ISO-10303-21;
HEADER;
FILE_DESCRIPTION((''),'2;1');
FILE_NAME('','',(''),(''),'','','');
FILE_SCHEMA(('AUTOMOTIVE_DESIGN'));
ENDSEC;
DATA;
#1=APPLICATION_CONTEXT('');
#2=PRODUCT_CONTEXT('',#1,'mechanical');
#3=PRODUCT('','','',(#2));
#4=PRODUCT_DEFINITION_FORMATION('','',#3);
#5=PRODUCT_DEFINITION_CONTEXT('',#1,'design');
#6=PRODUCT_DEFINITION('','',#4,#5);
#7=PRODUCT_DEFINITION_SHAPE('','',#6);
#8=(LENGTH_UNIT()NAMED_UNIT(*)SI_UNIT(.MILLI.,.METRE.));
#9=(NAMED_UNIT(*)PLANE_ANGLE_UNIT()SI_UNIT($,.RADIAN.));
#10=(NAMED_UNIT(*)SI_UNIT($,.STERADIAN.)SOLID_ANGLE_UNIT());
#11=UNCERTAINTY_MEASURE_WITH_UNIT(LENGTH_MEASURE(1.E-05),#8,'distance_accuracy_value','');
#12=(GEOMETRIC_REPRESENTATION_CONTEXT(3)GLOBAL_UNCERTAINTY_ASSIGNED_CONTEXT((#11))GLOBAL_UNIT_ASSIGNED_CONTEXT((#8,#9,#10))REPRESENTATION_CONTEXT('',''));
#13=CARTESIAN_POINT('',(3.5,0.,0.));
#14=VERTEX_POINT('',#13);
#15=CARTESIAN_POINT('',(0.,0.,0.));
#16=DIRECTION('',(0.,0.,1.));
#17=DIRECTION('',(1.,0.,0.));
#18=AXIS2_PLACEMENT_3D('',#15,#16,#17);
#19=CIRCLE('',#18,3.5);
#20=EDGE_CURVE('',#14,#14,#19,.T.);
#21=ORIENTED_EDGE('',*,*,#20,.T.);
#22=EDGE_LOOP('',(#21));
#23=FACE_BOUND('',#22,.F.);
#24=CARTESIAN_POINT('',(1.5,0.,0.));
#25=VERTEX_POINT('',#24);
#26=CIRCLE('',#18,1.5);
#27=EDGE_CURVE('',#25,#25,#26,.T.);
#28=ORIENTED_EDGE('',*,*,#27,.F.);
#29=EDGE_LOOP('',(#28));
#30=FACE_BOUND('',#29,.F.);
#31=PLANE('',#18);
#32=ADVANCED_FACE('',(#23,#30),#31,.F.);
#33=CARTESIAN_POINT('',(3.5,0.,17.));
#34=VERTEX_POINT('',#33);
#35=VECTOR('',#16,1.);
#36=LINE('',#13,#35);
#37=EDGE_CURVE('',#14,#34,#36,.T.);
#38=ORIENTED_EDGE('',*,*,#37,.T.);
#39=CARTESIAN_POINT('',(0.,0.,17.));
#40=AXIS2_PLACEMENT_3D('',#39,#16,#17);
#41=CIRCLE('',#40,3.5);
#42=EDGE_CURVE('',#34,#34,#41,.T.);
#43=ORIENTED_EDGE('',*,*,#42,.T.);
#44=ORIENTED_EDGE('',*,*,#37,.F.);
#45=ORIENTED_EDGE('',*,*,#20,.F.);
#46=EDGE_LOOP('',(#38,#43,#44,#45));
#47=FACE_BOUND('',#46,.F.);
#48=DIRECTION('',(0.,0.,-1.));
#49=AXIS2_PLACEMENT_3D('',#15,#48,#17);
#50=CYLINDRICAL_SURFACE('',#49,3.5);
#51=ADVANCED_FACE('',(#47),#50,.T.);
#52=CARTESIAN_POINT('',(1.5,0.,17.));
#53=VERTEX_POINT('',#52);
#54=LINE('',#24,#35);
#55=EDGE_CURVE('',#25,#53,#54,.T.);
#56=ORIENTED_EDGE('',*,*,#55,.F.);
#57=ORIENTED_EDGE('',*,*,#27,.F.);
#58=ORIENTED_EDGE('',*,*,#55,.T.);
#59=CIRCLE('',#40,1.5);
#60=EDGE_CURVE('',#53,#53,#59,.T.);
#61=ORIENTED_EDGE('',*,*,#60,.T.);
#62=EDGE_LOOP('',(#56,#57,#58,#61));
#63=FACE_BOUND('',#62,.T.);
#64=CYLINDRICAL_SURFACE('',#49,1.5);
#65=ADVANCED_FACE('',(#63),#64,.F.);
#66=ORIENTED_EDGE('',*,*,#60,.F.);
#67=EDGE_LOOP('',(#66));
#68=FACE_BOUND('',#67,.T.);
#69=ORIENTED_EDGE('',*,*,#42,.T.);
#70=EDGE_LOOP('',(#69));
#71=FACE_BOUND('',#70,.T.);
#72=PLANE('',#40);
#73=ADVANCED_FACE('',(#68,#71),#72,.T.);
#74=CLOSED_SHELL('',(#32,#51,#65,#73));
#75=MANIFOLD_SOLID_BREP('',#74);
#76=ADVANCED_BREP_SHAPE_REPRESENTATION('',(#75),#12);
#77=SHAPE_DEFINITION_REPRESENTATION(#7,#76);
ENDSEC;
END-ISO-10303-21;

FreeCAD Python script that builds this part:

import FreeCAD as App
import Part
import Sketcher
from FreeCAD import Vector
Q = App.Units.Quantity

doc = App.newDocument("Part")
body = doc.addObject("PartDesign::Body", "Body")

# Sketch on XY plane
sketch1 = doc.addObject("Sketcher::SketchObject", "Sketch")
body.addObject(sketch1)
sketch1.AttachmentSupport = (doc.XY_Plane, [""])
sketch1.MapMode = "FlatFace"
sketch1.addGeometry([
    Part.Circle(Vector(0, 0, 0), Vector(0, 0, 1), 3.5),
    Part.Circle(Vector(0, 0, 0), Vector(0, 0, 1), 1.5),
], False)
sketch1.addConstraint([
    Sketcher.Constraint("Coincident", 0, 3, -1, 1),
    Sketcher.Constraint("Coincident", 1, 3, -1, 1),
    Sketcher.Constraint("Diameter", 1, Q("3 mm")),
    Sketcher.Constraint("Diameter", 0, Q("7 mm")),
])
pad1 = doc.addObject("PartDesign::Pad", "Pad")
body.addObject(pad1)
pad1.Profile = sketch1
pad1.Length = 17

doc.recompute()
